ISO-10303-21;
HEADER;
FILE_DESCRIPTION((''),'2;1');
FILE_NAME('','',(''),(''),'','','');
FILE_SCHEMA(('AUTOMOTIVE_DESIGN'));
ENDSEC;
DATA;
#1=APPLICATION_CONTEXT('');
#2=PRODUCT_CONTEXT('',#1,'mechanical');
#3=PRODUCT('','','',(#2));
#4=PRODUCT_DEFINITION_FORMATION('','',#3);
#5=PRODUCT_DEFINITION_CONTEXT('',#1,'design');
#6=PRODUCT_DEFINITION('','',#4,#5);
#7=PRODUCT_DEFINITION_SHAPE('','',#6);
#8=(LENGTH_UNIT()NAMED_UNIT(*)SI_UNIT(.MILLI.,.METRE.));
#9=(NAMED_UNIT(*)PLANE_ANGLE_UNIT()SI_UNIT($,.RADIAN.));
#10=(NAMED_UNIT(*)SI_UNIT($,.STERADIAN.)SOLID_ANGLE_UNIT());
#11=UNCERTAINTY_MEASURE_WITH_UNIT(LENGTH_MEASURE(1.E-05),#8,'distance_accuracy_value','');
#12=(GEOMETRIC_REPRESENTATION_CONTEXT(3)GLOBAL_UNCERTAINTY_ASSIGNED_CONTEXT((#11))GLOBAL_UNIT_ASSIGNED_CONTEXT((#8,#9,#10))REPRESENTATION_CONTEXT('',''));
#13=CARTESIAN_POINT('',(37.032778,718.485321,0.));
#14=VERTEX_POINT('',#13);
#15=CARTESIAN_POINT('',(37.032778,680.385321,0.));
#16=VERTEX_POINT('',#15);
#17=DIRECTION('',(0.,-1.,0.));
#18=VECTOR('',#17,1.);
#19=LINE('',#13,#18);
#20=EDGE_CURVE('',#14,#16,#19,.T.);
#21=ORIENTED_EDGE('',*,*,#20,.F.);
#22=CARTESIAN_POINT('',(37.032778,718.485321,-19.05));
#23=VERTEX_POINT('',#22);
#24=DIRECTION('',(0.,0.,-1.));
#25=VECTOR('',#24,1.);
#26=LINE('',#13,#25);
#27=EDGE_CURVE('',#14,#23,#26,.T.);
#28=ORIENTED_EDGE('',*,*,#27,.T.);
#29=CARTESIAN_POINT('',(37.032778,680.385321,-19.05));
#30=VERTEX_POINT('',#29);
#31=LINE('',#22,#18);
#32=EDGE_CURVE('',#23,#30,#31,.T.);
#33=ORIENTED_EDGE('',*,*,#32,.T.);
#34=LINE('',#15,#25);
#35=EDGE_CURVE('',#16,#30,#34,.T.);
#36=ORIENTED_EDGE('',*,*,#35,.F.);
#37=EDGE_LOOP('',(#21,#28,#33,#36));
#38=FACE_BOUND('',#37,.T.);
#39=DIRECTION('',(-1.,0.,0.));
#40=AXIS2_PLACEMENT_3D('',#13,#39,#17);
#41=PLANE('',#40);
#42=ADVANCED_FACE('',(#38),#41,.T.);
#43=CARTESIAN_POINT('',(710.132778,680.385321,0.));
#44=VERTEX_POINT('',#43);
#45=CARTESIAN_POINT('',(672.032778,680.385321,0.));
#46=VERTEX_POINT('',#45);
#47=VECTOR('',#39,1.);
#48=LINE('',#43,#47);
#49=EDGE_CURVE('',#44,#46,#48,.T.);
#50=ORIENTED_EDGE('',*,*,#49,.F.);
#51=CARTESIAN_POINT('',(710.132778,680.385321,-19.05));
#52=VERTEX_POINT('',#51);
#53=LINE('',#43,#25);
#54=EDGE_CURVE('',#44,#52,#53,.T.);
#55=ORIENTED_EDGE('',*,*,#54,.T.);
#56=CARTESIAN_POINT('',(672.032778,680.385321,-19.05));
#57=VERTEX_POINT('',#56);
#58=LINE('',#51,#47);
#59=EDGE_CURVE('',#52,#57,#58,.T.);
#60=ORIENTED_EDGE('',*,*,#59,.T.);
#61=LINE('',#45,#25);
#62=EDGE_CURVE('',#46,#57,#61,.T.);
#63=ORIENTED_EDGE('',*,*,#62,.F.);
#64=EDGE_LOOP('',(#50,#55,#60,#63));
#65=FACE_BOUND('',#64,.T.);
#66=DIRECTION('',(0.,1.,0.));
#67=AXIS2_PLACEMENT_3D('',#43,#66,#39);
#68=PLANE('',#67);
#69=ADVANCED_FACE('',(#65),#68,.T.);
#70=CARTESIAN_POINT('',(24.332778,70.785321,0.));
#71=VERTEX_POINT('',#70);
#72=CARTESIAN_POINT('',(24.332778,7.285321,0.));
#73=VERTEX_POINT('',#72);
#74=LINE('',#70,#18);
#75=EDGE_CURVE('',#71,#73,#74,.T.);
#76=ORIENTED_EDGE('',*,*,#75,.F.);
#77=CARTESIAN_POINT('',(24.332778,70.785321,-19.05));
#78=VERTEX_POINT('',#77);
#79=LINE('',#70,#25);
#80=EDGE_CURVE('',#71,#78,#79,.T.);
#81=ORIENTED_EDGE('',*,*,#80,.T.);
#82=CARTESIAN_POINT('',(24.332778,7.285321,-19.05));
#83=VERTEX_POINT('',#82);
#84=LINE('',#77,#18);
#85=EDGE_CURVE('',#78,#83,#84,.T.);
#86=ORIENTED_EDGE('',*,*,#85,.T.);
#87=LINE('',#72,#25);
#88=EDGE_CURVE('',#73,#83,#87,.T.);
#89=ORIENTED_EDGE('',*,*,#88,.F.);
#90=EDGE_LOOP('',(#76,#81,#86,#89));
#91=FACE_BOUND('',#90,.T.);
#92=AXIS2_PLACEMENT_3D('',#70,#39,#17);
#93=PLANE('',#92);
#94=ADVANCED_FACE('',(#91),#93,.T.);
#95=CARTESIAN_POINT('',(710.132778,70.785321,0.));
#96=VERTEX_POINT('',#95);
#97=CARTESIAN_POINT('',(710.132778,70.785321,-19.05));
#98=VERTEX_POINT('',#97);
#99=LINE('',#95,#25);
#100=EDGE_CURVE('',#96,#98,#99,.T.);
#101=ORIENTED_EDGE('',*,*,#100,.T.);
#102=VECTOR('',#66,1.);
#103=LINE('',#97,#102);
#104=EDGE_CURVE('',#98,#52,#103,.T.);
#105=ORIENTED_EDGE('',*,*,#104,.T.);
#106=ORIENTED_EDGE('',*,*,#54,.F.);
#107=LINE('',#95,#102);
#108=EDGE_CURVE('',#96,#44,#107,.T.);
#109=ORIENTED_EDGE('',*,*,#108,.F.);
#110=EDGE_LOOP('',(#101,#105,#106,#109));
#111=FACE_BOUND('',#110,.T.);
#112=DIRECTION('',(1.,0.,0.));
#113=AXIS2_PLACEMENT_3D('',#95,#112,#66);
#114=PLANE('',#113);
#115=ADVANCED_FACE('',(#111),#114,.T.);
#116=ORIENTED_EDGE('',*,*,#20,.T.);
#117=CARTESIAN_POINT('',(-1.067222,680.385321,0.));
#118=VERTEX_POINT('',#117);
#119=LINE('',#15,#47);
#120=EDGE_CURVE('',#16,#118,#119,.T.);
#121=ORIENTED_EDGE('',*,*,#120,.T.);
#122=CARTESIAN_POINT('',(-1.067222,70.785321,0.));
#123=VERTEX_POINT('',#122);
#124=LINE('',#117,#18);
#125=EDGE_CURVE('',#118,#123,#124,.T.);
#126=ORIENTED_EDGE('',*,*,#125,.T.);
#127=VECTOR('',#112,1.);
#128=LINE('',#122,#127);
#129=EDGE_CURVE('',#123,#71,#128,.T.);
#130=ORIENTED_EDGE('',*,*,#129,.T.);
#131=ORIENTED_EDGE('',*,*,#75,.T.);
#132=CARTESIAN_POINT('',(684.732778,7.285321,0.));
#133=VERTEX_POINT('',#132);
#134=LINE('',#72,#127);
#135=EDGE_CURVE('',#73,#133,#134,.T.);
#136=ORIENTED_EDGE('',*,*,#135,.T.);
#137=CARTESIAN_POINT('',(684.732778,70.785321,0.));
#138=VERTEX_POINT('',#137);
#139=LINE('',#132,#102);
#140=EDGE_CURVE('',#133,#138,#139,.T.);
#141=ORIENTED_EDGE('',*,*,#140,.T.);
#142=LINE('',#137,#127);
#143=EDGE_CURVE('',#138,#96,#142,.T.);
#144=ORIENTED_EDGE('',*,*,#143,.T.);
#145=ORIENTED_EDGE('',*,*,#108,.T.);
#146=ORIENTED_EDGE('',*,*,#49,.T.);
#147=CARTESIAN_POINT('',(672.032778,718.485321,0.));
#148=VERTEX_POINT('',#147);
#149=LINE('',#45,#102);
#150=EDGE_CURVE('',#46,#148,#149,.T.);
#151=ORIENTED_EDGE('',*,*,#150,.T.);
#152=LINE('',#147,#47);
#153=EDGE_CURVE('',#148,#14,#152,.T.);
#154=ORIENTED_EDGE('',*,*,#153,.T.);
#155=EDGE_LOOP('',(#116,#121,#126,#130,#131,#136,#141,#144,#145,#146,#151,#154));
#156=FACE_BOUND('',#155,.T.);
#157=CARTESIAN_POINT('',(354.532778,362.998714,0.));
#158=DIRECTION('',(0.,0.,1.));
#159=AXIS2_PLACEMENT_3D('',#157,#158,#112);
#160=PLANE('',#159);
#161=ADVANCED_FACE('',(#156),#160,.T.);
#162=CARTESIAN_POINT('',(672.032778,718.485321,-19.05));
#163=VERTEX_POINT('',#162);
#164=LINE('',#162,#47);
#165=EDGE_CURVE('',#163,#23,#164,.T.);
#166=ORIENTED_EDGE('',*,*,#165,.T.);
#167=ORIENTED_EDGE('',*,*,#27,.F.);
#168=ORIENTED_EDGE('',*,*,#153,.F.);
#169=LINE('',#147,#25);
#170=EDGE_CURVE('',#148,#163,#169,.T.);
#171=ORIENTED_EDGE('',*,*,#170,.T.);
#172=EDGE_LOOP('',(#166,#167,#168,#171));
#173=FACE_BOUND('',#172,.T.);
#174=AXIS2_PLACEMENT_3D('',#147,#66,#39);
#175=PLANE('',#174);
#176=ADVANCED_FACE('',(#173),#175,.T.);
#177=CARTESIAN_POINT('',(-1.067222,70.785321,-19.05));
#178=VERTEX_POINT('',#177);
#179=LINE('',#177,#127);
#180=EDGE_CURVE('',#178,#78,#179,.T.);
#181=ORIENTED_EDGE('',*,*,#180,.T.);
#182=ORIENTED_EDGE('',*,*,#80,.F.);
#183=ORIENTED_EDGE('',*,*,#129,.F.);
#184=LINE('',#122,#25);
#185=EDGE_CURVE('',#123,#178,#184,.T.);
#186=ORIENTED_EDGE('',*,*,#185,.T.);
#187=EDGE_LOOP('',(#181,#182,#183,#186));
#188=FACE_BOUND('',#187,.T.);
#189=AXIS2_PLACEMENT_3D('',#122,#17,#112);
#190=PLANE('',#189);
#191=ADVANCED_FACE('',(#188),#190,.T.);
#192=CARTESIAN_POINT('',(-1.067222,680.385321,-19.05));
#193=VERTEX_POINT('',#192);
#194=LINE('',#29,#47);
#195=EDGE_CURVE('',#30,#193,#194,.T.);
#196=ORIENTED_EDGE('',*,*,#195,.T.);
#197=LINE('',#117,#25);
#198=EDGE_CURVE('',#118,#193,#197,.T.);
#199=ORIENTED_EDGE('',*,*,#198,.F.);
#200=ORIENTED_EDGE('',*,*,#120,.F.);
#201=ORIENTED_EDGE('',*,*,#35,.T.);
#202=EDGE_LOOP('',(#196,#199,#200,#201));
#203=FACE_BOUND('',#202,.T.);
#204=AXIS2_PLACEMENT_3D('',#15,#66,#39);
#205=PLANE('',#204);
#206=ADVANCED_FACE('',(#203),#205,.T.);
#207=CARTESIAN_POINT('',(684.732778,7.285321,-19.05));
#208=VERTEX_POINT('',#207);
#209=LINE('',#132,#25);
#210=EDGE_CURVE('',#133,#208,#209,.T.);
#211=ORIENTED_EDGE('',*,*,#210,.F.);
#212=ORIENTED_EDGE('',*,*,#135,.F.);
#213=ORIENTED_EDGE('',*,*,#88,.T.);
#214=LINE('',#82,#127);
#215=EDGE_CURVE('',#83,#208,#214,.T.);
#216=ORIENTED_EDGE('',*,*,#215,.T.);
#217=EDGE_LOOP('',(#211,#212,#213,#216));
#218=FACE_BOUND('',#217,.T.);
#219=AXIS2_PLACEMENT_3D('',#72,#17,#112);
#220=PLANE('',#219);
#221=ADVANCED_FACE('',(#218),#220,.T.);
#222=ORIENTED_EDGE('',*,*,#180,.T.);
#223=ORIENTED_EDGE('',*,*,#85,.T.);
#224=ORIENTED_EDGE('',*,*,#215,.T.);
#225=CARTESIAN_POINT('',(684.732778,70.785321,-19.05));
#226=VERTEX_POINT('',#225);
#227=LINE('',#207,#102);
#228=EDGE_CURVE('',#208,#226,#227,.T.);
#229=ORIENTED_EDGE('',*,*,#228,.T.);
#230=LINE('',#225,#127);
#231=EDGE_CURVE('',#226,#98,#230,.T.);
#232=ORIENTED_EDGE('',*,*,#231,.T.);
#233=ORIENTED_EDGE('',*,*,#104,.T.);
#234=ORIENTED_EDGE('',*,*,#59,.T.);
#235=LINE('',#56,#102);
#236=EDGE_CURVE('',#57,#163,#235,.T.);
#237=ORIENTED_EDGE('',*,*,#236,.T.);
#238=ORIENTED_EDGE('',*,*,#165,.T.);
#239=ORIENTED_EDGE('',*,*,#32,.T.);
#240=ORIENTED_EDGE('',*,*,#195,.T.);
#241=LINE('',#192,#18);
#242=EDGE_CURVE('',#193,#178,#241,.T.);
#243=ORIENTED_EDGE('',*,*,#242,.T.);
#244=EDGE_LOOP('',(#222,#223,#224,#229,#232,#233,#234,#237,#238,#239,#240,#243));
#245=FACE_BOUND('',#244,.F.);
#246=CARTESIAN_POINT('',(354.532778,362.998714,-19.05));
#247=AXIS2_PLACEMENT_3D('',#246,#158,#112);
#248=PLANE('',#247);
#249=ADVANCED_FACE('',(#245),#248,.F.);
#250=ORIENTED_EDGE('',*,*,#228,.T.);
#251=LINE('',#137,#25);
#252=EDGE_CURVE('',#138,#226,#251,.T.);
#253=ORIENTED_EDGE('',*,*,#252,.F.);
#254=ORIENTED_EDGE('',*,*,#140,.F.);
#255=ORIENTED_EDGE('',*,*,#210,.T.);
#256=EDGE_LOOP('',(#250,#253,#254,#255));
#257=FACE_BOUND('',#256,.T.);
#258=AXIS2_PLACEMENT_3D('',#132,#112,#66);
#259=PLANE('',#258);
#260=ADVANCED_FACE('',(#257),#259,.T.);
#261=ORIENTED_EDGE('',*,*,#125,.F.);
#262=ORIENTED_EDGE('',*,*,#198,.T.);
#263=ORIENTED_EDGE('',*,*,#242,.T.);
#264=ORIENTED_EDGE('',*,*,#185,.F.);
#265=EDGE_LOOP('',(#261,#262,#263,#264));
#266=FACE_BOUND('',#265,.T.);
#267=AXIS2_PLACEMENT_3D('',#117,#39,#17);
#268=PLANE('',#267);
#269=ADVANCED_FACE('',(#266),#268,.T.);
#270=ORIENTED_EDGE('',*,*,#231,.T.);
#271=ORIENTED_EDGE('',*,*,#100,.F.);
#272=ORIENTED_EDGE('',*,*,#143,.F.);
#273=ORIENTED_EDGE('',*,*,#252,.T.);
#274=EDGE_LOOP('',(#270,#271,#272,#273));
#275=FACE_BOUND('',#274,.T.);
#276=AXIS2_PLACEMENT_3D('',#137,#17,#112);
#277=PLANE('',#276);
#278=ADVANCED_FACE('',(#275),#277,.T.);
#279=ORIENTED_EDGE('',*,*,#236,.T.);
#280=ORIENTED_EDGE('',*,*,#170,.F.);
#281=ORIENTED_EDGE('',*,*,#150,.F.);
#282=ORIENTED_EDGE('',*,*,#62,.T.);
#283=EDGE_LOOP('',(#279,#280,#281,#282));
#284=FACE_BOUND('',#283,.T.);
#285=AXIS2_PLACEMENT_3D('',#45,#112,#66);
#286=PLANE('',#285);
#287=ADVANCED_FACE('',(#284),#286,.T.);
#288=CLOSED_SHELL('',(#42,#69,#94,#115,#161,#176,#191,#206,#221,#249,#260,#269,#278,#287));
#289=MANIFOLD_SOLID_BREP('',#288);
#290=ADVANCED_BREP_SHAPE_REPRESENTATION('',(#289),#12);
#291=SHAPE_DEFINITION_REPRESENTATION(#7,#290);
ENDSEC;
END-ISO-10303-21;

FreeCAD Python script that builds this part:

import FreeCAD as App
import Part
import Sketcher
from FreeCAD import Vector
Q = App.Units.Quantity

doc = App.newDocument("Part")
body = doc.addObject("PartDesign::Body", "Body")

sketch1 = body.newObject("Sketcher::SketchObject", "Sketch")
sketch1.AttachmentSupport = (doc.getObject("XY_Plane"), [""])
sketch1.MapMode = "FlatFace"
sketch1.addGeometry(Part.LineSegment(Vector(24, 71, 0), Vector(24, 7, 0)), False)
sketch1.addGeometry(Part.LineSegment(Vector(24, 7, 0), Vector(685, 7, 0)), False)
sketch1.addGeometry(Part.LineSegment(Vector(685, 7, 0), Vector(685, 71, 0)), False)
sketch1.addGeometry(Part.LineSegment(Vector(685, 71, 0), Vector(710, 71, 0)), False)
sketch1.addGeometry(Part.LineSegment(Vector(710, 71, 0), Vector(710, 680, 0)), False)
sketch1.addGeometry(Part.LineSegment(Vector(710, 680, 0), Vector(672, 680, 0)), False)
sketch1.addGeometry(Part.LineSegment(Vector(672, 680, 0), Vector(672, 718, 0)), False)
sketch1.addGeometry(Part.LineSegment(Vector(672, 718, 0), Vector(37, 718, 0)), False)
sketch1.addGeometry(Part.LineSegment(Vector(37, 718, 0), Vector(37, 680, 0)), False)
sketch1.addGeometry(Part.LineSegment(Vector(37, 680, 0), Vector(-1, 680, 0)), False)
sketch1.addGeometry(Part.LineSegment(Vector(-1, 680, 0), Vector(-1, 71, 0)), False)
sketch1.addGeometry(Part.LineSegment(Vector(-1, 71, 0), Vector(24, 71, 0)), False)
sketch1.addConstraint(Sketcher.Constraint("Coincident", 0, 2, 1, 1))
sketch1.addConstraint(Sketcher.Constraint("Coincident", 1, 2, 2, 1))
sketch1.addConstraint(Sketcher.Constraint("Coincident", 2, 2, 3, 1))
sketch1.addConstraint(Sketcher.Constraint("Coincident", 3, 2, 4, 1))
sketch1.addConstraint(Sketcher.Constraint("Coincident", 4, 2, 5, 1))
sketch1.addConstraint(Sketcher.Constraint("Coincident", 5, 2, 6, 1))
sketch1.addConstraint(Sketcher.Constraint("Coincident", 6, 2, 7, 1))
sketch1.addConstraint(Sketcher.Constraint("Coincident", 7, 2, 8, 1))
sketch1.addConstraint(Sketcher.Constraint("Coincident", 8, 2, 9, 1))
sketch1.addConstraint(Sketcher.Constraint("Coincident", 9, 2, 10, 1))
sketch1.addConstraint(Sketcher.Constraint("Coincident", 10, 2, 11, 1))
sketch1.addConstraint(Sketcher.Constraint("Coincident", 11, 2, 0, 1))
sketch1.addConstraint(Sketcher.Constraint("Vertical", 0))
sketch1.addConstraint(Sketcher.Constraint("Horizontal", 1))
sketch1.addConstraint(Sketcher.Constraint("Vertical", 2))
sketch1.addConstraint(Sketcher.Constraint("Horizontal", 3))
sketch1.addConstraint(Sketcher.Constraint("Vertical", 4))
sketch1.addConstraint(Sketcher.Constraint("Horizontal", 5))
sketch1.addConstraint(Sketcher.Constraint("Vertical", 6))
sketch1.addConstraint(Sketcher.Constraint("Horizontal", 7))
sketch1.addConstraint(Sketcher.Constraint("Vertical", 8))
sketch1.addConstraint(Sketcher.Constraint("Horizontal", 9))
sketch1.addConstraint(Sketcher.Constraint("Vertical", 10))
sketch1.addConstraint(Sketcher.Constraint("Horizontal", 11))
sketch1.addConstraint(Sketcher.Constraint("Horizontal", 5, 2, 8, 2))
sketch1.addConstraint(Sketcher.Constraint("Horizontal", 3, 2, 10, 2))
sketch1.addConstraint(Sketcher.Constraint("Equal", 5, 9))
sketch1.addConstraint(Sketcher.Constraint("Equal", 3, 11))
sketch1.addConstraint(Sketcher.Constraint("Equal", 9, 6))
sketch1.addConstraint(Sketcher.Constraint("DistanceX", 1, 1, 1, 2, Q("26 in")))
sketch1.addConstraint(Sketcher.Constraint("DistanceX", 3, 1, 3, 2, Q("1 in")))
sketch1.addConstraint(Sketcher.Constraint("DistanceX", 7, 2, 7, 1, Q("25 in")))
sketch1.addConstraint(Sketcher.Constraint("DistanceY", 4, 1, 4, 2, Q("24 in")))
sketch1.addConstraint(Sketcher.Constraint("DistanceY", 0, 2, 0, 1, Q("2.5 in")))
sketch1.addConstraint(Sketcher.Constraint("DistanceX", -1, 1, 0, 2, 24.332778))
sketch1.addConstraint(Sketcher.Constraint("DistanceY", -1, 1, 0, 2, 7.285321))
pad1 = body.newObject("PartDesign::Pad", "Pad")
pad1.Profile = sketch1
pad1.Length = Q("0.75 in")
pad1.Reversed = True

doc.recompute()
